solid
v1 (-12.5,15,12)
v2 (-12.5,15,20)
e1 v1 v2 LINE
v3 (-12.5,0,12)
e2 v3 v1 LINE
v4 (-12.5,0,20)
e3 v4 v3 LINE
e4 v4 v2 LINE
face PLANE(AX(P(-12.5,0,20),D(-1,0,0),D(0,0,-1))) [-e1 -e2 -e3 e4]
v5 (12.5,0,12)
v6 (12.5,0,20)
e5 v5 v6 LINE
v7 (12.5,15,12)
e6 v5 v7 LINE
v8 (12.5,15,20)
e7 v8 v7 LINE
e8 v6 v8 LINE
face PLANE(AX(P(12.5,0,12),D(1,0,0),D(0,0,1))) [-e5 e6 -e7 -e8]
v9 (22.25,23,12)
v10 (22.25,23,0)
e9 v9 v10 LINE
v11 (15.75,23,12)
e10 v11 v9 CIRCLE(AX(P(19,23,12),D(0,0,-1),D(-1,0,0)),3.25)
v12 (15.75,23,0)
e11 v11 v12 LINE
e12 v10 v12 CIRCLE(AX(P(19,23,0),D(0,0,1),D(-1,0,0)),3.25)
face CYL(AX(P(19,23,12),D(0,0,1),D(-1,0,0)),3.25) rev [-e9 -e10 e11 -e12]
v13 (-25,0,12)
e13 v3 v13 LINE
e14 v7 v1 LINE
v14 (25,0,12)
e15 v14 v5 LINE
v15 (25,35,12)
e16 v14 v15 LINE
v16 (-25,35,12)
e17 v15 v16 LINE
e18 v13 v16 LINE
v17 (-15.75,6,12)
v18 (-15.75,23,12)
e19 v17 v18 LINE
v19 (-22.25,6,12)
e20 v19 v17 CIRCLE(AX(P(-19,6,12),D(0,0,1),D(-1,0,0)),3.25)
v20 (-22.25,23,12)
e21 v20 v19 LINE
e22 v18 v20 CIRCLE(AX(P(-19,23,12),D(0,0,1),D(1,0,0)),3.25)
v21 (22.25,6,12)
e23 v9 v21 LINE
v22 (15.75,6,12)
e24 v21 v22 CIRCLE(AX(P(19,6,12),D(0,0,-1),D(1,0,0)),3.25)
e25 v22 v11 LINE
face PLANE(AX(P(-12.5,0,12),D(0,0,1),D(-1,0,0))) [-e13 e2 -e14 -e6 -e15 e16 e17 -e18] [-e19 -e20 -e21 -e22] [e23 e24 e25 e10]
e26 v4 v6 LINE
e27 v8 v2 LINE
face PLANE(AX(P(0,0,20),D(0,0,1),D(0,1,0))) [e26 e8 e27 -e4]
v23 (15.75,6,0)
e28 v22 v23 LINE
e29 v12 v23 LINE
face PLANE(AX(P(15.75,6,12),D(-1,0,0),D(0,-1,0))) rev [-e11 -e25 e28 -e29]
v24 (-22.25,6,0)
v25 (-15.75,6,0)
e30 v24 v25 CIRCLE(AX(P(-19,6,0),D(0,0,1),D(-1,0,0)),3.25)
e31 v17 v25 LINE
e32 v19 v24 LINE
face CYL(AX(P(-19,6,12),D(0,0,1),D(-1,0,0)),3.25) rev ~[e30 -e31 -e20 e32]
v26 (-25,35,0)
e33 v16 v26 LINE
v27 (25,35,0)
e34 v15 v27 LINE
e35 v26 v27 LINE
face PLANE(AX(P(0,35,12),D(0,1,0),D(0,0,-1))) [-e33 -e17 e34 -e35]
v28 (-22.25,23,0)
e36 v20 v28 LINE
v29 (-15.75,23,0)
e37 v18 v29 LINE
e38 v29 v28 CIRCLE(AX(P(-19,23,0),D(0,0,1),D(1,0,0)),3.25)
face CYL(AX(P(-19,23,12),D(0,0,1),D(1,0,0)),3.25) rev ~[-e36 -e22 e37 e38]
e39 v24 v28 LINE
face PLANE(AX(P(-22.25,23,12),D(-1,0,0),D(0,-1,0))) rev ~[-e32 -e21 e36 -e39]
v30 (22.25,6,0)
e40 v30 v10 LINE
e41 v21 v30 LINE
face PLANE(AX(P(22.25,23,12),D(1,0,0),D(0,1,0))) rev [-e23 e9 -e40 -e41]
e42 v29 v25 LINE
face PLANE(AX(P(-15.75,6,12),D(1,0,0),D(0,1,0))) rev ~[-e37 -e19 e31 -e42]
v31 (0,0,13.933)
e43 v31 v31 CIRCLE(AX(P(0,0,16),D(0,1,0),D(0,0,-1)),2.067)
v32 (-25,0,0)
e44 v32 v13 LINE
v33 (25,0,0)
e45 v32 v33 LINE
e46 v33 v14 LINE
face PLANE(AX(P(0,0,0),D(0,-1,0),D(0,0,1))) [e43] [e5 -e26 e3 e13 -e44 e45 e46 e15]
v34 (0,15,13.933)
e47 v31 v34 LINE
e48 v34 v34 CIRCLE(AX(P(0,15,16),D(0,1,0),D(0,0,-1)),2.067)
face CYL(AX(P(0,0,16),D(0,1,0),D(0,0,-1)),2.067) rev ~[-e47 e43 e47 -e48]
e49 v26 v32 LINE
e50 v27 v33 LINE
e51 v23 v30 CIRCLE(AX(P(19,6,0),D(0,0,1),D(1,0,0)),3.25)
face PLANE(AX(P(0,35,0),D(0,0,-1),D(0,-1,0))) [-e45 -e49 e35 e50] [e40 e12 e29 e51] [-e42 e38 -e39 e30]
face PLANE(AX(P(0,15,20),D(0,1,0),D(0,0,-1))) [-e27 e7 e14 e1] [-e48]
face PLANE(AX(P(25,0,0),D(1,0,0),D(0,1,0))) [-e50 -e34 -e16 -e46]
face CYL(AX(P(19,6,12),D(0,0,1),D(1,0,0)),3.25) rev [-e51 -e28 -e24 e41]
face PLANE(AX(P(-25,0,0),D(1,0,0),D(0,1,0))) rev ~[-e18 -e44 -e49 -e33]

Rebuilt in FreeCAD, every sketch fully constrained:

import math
import FreeCAD as App
import Part
import Sketcher
from FreeCAD import Vector

doc = App.newDocument("Part")
params = doc.addObject("Spreadsheet::Sheet", "Params")
for row, (alias, value) in enumerate([
    ("sketch1_width", "35 mm"),
    ("sketch1_width2", "20 mm"),
    ("sketch1_height", "8 mm"),
    ("pad1_length", "50 mm"),
    ("sketch2_height", "8 mm"),
    ("sketch3_height", "17 mm"),
    ("sketch3_radius", "3.25 mm"),
    ("hole_diameter", "4.134 mm"),
], start=1):
    params.set(f"A{row}", alias)
    params.set(f"B{row}", "=" + value)
    params.setAlias(f"B{row}", alias)

body = doc.addObject("PartDesign::Body", "Body")

# Sketch on YZ plane
sketch1 = body.newObject("Sketcher::SketchObject", "Sketch")
sketch1.AttachmentSupport = (doc.getObject("YZ_Plane"), [""])
sketch1.MapMode = "FlatFace"
sketch1.addGeometry(Part.LineSegment(Vector(15, 20, 0), Vector(0, 20, 0)), False)
sketch1.addGeometry(Part.LineSegment(Vector(0, 20, 0), Vector(0, 0, 0)), False)
sketch1.addGeometry(Part.LineSegment(Vector(0, 0, 0), Vector(35, 0, 0)), False)
sketch1.addGeometry(Part.LineSegment(Vector(35, 0, 0), Vector(35, 12, 0)), False)
sketch1.addGeometry(Part.LineSegment(Vector(35, 12, 0), Vector(15, 12, 0)), False)
sketch1.addGeometry(Part.LineSegment(Vector(15, 12, 0), Vector(15, 20, 0)), False)
sketch1.addConstraint(Sketcher.Constraint("Coincident", 0, 2, 1, 1))
sketch1.addConstraint(Sketcher.Constraint("Coincident", 1, 2, 2, 1))
sketch1.addConstraint(Sketcher.Constraint("Coincident", 2, 2, 3, 1))
sketch1.addConstraint(Sketcher.Constraint("Coincident", 3, 2, 4, 1))
sketch1.addConstraint(Sketcher.Constraint("Coincident", 4, 2, 5, 1))
sketch1.addConstraint(Sketcher.Constraint("Coincident", 5, 2, 0, 1))
sketch1.addConstraint(Sketcher.Constraint("Horizontal", 0))
sketch1.addConstraint(Sketcher.Constraint("Vertical", 1))
sketch1.addConstraint(Sketcher.Constraint("Horizontal", 2))
sketch1.addConstraint(Sketcher.Constraint("Vertical", 3))
sketch1.addConstraint(Sketcher.Constraint("Horizontal", 4))
sketch1.addConstraint(Sketcher.Constraint("Vertical", 5))
sketch1.addConstraint(Sketcher.Constraint("Coincident", 1, 2, -1, 1))
sketch1.addConstraint(Sketcher.Constraint("Equal", 4, 1))
sketch1.addConstraint(Sketcher.Constraint("DistanceX", 2, 1, 2, 2, 35.0))
sketch1.addConstraint(Sketcher.Constraint("DistanceX", 4, 2, 4, 1, 20.0))
sketch1.addConstraint(Sketcher.Constraint("DistanceY", 5, 1, 5, 2, 8.0))
sketch1.setExpression("Constraints[14]", "Params.sketch1_width")
sketch1.setExpression("Constraints[15]", "Params.sketch1_width2")
sketch1.setExpression("Constraints[16]", "Params.sketch1_height")
pad1 = body.newObject("PartDesign::Pad", "Pad")
pad1.Profile = sketch1
pad1.setExpression("Length", "Params.pad1_length")
pad1.Midplane = True

# Sketch on XZ plane
sketch2 = body.newObject("Sketcher::SketchObject", "Sketch001")
sketch2.AttachmentSupport = (doc.getObject("XZ_Plane"), [""])
sketch2.MapMode = "FlatFace"
sketch2.addGeometry(Part.LineSegment(Vector(-12, 20, 0), Vector(-25, 20, 0)), False)
sketch2.addGeometry(Part.LineSegment(Vector(-25, 20, 0), Vector(-25, 12, 0)), False)
sketch2.addGeometry(Part.LineSegment(Vector(-25, 12, 0), Vector(-12, 12, 0)), False)
sketch2.addGeometry(Part.LineSegment(Vector(-12, 12, 0), Vector(-12, 20, 0)), False)
sketch2.addGeometry(Part.LineSegment(Vector(25, 20, 0), Vector(12, 20, 0)), False)
sketch2.addGeometry(Part.LineSegment(Vector(12, 20, 0), Vector(12, 12, 0)), False)
sketch2.addGeometry(Part.LineSegment(Vector(12, 12, 0), Vector(25, 12, 0)), False)
sketch2.addGeometry(Part.LineSegment(Vector(25, 12, 0), Vector(25, 20, 0)), False)
sketch2.addConstraint(Sketcher.Constraint("Coincident", 0, 2, 1, 1))
sketch2.addConstraint(Sketcher.Constraint("Coincident", 1, 2, 2, 1))
sketch2.addConstraint(Sketcher.Constraint("Coincident", 2, 2, 3, 1))
sketch2.addConstraint(Sketcher.Constraint("Coincident", 3, 2, 0, 1))
sketch2.addConstraint(Sketcher.Constraint("Coincident", 4, 2, 5, 1))
sketch2.addConstraint(Sketcher.Constraint("Coincident", 5, 2, 6, 1))
sketch2.addConstraint(Sketcher.Constraint("Coincident", 6, 2, 7, 1))
sketch2.addConstraint(Sketcher.Constraint("Coincident", 7, 2, 4, 1))
sketch2.addConstraint(Sketcher.Constraint("Horizontal", 0))
sketch2.addConstraint(Sketcher.Constraint("Vertical", 1))
sketch2.addConstraint(Sketcher.Constraint("Horizontal", 2))
sketch2.addConstraint(Sketcher.Constraint("Vertical", 3))
sketch2.addConstraint(Sketcher.Constraint("Horizontal", 4))
sketch2.addConstraint(Sketcher.Constraint("Vertical", 5))
sketch2.addConstraint(Sketcher.Constraint("Horizontal", 6))
sketch2.addConstraint(Sketcher.Constraint("Vertical", 7))
sketch2.addConstraint(Sketcher.Constraint("Symmetric", 3, 2, 4, 2, -2))
sketch2.addConstraint(Sketcher.Constraint("Symmetric", 1, 2, 6, 2, -2))
sketch2.addConstraint(Sketcher.Constraint("DistanceX", 0, 2, -1, 1, 25.0))
sketch2.addConstraint(Sketcher.Constraint("DistanceX", 3, 2, 4, 2, 25.0))
sketch2.addConstraint(Sketcher.Constraint("DistanceY", 1, 2, 1, 1, 8.0))
sketch2.addConstraint(Sketcher.Constraint("DistanceY", -1, 1, 0, 2, 20.0))
sketch2.setExpression("Constraints[20]", "Params.sketch2_height")
pocket1 = body.newObject("PartDesign::Pocket", "Pocket")
pocket1.Profile = sketch2
pocket1.Type = "ThroughAll"

# Sketch on XY plane
sketch3 = body.newObject("Sketcher::SketchObject", "Sketch002")
sketch3.AttachmentSupport = (doc.getObject("XY_Plane"), [""])
sketch3.MapMode = "FlatFace"
sketch3.AttachmentOffset = App.Placement(Vector(0, 0, 12), App.Rotation())
sketch3.addGeometry(Part.ArcOfCircle(Part.Circle(Vector(-19, 6, 0), Vector(0, 0, 1), 3.2), math.radians(180), math.radians(360)), False)
sketch3.addGeometry(Part.LineSegment(Vector(-15.8, 6, 0), Vector(-15.8, 23, 0)), False)
sketch3.addGeometry(Part.ArcOfCircle(Part.Circle(Vector(-19, 23, 0), Vector(0, 0, 1), 3.2), math.radians(0), math.radians(180)), False)
sketch3.addGeometry(Part.LineSegment(Vector(-22.2, 23, 0), Vector(-22.2, 6, 0)), False)
sketch3.addConstraint(Sketcher.Constraint("Tangent", 0, 2, 1, 1))
sketch3.addConstraint(Sketcher.Constraint("Tangent", 1, 2, 2, 1))
sketch3.addConstraint(Sketcher.Constraint("Tangent", 2, 2, 3, 1))
sketch3.addConstraint(Sketcher.Constraint("Tangent", 3, 2, 0, 1))
sketch3.addConstraint(Sketcher.Constraint("Vertical", 1))
sketch3.addConstraint(Sketcher.Constraint("Vertical", 3))
sketch3.addConstraint(Sketcher.Constraint("DistanceY", 1, 1, 1, 2, 17.0))
sketch3.addConstraint(Sketcher.Constraint("Radius", 0, 3.25))
sketch3.addConstraint(Sketcher.Constraint("DistanceY", -1, 1, 0, 3, 6.0))
sketch3.addConstraint(Sketcher.Constraint("DistanceX", 0, 3, -1, 1, 19.0))
sketch3.setExpression("Constraints[6]", "Params.sketch3_height")
sketch3.setExpression("Constraints[7]", "Params.sketch3_radius")
pocket2 = body.newObject("PartDesign::Pocket", "Pocket001")
pocket2.Profile = sketch3
pocket2.Type = "ThroughAll"
doc.recompute()

mirrored = body.newObject("PartDesign::Mirrored", "Mirrored")
mirrored.Originals = [pocket2]
mirrored.MirrorPlane = (doc.getObject("YZ_Plane"), [""])
body.Tip = mirrored

# Sketch on XZ plane
sketch4 = body.newObject("Sketcher::SketchObject", "Sketch003")
sketch4.AttachmentSupport = (doc.getObject("XZ_Plane"), [""])
sketch4.MapMode = "FlatFace"
sketch4.addGeometry(Part.Circle(Vector(0, 16, 0), Vector(0, 0, 1), 2.1), False)
sketch4.addConstraint(Sketcher.Constraint("PointOnObject", 0, 3, -2))
sketch4.addConstraint(Sketcher.Constraint("Diameter", 0, 4.134))
sketch4.addConstraint(Sketcher.Constraint("DistanceY", -1, 1, 0, 3, 16.0))
doc.recompute()
hole = body.newObject("PartDesign::Hole", "Hole")
hole.Profile = sketch4
hole.ThreadType = "None"
hole.setExpression("Diameter", "Params.hole_diameter")
hole.DepthType = "ThroughAll"

doc.recompute()
